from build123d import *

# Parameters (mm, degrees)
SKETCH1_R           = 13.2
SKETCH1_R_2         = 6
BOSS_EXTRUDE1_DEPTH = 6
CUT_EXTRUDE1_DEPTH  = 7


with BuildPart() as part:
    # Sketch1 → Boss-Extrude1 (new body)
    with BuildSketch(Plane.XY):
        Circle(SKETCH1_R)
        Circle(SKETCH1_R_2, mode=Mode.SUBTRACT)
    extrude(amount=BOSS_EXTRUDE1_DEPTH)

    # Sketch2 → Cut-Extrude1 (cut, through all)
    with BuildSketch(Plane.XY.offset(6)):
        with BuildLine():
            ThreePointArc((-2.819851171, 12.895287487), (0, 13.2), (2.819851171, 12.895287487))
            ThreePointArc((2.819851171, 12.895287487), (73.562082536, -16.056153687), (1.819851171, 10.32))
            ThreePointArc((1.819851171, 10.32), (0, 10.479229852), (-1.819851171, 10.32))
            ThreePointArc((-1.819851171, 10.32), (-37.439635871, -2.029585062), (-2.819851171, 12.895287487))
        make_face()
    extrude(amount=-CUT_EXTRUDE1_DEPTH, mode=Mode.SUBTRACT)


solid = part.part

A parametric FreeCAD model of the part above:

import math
import FreeCAD as App
import Part
import Sketcher
Q = App.Units.Quantity

doc = App.newDocument("Part")
body = doc.addObject("PartDesign::Body", "Body")
body.AllowCompound = True

# Sketch on XY plane
sketch1 = doc.addObject("Sketcher::SketchObject", "Sketch")
body.addObject(sketch1)
sketch1.AttachmentSupport = (doc.XY_Plane, [""])
sketch1.MapMode = "FlatFace"
sketch1.addGeometry([
    Part.Circle(App.Vector(0, 0, 0), App.Vector(0, 0, 1), 13.2),
    Part.Circle(App.Vector(0, 0, 0), App.Vector(0, 0, 1), 6),
], False)
sketch1.addConstraint([
    Sketcher.Constraint("Coincident", 0, 3, -1, 1),
    Sketcher.Constraint("Coincident", 1, 3, -1, 1),
    Sketcher.Constraint("Diameter", 1, Q("12 mm")),
    Sketcher.Constraint("Diameter", 0, Q("26.4 mm")),
])
pad1 = doc.addObject("PartDesign::Pad", "Pad")
body.addObject(pad1)
pad1.Profile = sketch1
pad1.Length = 6

# Sketch on XY plane
sketch2 = doc.addObject("Sketcher::SketchObject", "Sketch001")
body.addObject(sketch2)
sketch2.AttachmentSupport = (doc.XY_Plane, [""])
sketch2.MapMode = "FlatFace"
sketch2.AttachmentOffset = App.Placement(App.Vector(0, 0, 6), App.Rotation())
sketch2.addGeometry([
    Part.ArcOfCircle(Part.Circle(App.Vector(0, 0, 0), App.Vector(0, 0, 1), 13.2), math.radians(77.665123), math.radians(102.334877)),
    Part.ArcOfCircle(Part.Circle(App.Vector(-19.856138, 4.798195, 0), App.Vector(0, 0, 1), 18.862608), math.radians(25.421041), math.radians(377.021955)),
    Part.ArcOfCircle(Part.Circle(App.Vector(0, 0, 0), App.Vector(0, 0, 1), 10.47923), math.radians(79.999156), math.radians(100.000844)),
    Part.ArcOfCircle(Part.Circle(App.Vector(37.92933, -2.219736, 0), App.Vector(0, 0, 1), 38.224854), math.radians(160.849423), math.radians(516.707581)),
], False)
sketch2.addConstraint([
    Sketcher.Constraint("Coincident", 0, 2, 1, 1),
    Sketcher.Constraint("Coincident", 1, 2, 2, 2),
    Sketcher.Constraint("Coincident", 2, 1, 3, 1),
    Sketcher.Constraint("Coincident", 3, 2, 0, 1),
    Sketcher.Constraint("Coincident", 0, 3, -1, 1),
    Sketcher.Constraint("Coincident", 2, 3, -1, 1),
    Sketcher.Constraint("Horizontal", 1, 2, 2, 1),
    Sketcher.Constraint("Radius", 0, Q("13.2 mm")),
    Sketcher.Constraint("DistanceX", 0, 2, 1, 2, Q("1 mm")),
    Sketcher.Constraint("DistanceX", 2, 1, 3, 2, Q("1 mm")),
    Sketcher.Constraint("DistanceY", -1, 1, 1, 2, Q("10.32 mm")),
    Sketcher.Constraint("Radius", 2, Q("10.47923 mm")),
    Sketcher.Constraint("Radius", 1, Q("18.862608 mm")),
    Sketcher.Constraint("Radius", 3, Q("38.224854 mm")),
])
pocket1 = doc.addObject("PartDesign::Pocket", "Pocket")
body.addObject(pocket1)
pocket1.Profile = sketch2
pocket1.Type = "ThroughAll"

doc.recompute()
